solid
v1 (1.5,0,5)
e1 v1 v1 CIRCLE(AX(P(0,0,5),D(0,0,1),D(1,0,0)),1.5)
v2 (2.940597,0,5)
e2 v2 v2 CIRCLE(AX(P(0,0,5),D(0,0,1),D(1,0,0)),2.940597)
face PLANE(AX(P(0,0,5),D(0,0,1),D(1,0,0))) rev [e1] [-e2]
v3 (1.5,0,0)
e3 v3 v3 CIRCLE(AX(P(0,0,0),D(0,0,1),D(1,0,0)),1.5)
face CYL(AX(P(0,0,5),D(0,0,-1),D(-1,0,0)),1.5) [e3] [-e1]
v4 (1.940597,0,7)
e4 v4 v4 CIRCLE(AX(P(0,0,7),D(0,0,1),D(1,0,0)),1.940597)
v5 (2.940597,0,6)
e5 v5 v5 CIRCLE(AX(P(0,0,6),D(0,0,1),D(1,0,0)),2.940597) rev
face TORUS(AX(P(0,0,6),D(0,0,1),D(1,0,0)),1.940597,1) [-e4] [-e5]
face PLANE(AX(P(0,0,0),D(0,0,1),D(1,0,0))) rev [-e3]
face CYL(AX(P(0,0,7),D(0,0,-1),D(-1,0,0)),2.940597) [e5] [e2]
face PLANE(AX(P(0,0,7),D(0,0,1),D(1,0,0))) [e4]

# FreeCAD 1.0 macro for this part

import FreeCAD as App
import Part
import Sketcher
from FreeCAD import Vector


def edges_at(feature, points):
    """Names of the edges that pass closest to the given points."""
    edges = feature.Shape.Edges
    near = lambda p: min(range(len(edges)), key=lambda i: edges[i].distToShape(Part.Vertex(*p))[0])
    return sorted({f"Edge{near(p) + 1}" for p in points})

doc = App.newDocument("Part")
body = doc.addObject("PartDesign::Body", "Body")

# Sketch on XY plane
sketch1 = body.newObject("Sketcher::SketchObject", "Sketch")
sketch1.AttachmentSupport = (doc.getObject("XY_Plane"), [""])
sketch1.MapMode = "FlatFace"
sketch1.addGeometry(Part.Circle(Vector(0, 0, 0), Vector(0, 0, 1), 1.5), False)
sketch1.addConstraint(Sketcher.Constraint("Coincident", 0, 3, -1, 1))
sketch1.addConstraint(Sketcher.Constraint("Diameter", 0, 3.0))
pad1 = body.newObject("PartDesign::Pad", "Pad")
pad1.Profile = sketch1
pad1.Length = 5

# Sketch on XY plane
sketch2 = body.newObject("Sketcher::SketchObject", "Sketch001")
sketch2.AttachmentSupport = (doc.getObject("XY_Plane"), [""])
sketch2.MapMode = "FlatFace"
sketch2.AttachmentOffset = App.Placement(Vector(0, 0, 5), App.Rotation())
sketch2.addGeometry(Part.Circle(Vector(0, 0, 0), Vector(0, 0, 1), 2.9), False)
sketch2.addConstraint(Sketcher.Constraint("Coincident", 0, 3, -1, 1))
sketch2.addConstraint(Sketcher.Constraint("Diameter", 0, 5.881194))
pad2 = body.newObject("PartDesign::Pad", "Pad001")
pad2.Profile = sketch2
pad2.Length = 2
doc.recompute()

fillet = body.newObject("PartDesign::Fillet", "Fillet")
fillet.Base = (pad2, edges_at(pad2, [(-2.941, 0, 7)]))
fillet.Radius = 1

doc.recompute()
